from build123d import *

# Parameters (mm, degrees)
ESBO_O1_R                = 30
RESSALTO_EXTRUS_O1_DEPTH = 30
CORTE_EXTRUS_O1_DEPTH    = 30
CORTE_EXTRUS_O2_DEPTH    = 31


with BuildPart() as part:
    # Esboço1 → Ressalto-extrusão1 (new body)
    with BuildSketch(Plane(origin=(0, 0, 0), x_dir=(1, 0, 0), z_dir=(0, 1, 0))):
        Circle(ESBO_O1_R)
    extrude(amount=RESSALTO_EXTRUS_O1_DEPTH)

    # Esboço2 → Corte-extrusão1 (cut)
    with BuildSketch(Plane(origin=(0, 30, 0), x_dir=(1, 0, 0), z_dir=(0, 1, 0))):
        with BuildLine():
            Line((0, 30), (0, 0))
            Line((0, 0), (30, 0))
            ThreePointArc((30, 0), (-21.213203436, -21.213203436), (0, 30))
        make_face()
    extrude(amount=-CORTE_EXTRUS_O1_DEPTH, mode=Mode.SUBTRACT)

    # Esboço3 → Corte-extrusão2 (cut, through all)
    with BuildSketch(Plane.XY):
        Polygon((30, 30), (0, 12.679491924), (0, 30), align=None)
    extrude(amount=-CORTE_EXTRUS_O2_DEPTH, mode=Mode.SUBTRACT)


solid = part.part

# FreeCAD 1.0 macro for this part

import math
import FreeCAD as App
import Part
import Sketcher
Q = App.Units.Quantity


def add_polygon(sketch, points):
    """Adds a closed chain of lines whose ends are joined by coincident constraints."""
    first, n = sketch.GeometryCount, len(points)
    for a, b in zip(points, points[1:] + points[:1]):
        sketch.addGeometry(Part.LineSegment(App.Vector(*a, 0), App.Vector(*b, 0)), False)
    for i in range(n):
        sketch.addConstraint(Sketcher.Constraint("Coincident", first + i, 2, first + (i + 1) % n, 1))

doc = App.newDocument("Part")
body = doc.addObject("PartDesign::Body", "Body")

# Sketch on XZ plane
sketch1 = body.newObject("Sketcher::SketchObject", "Sketch")
sketch1.AttachmentSupport = (doc.getObject("XZ_Plane"), [""])
sketch1.MapMode = "FlatFace"
sketch1.addGeometry(Part.Circle(App.Vector(0, 0, 0), App.Vector(0, 0, 1), 30), False)
sketch1.addConstraint(Sketcher.Constraint("Coincident", 0, 3, -1, 1))
sketch1.addConstraint(Sketcher.Constraint("Diameter", 0, 60.0))
pad1 = body.newObject("PartDesign::Pad", "Pad")
pad1.Profile = sketch1
pad1.Length = 30
pad1.Reversed = True

# Sketch on XZ plane
sketch2 = body.newObject("Sketcher::SketchObject", "Sketch001")
sketch2.AttachmentSupport = (doc.getObject("XZ_Plane"), [""])
sketch2.MapMode = "FlatFace"
sketch2.AttachmentOffset = App.Placement(App.Vector(0, 0, -30), App.Rotation())
sketch2.addGeometry(Part.LineSegment(App.Vector(0, 0, 0), App.Vector(0, -30, 0)), False)
sketch2.addGeometry(Part.ArcOfCircle(Part.Circle(App.Vector(0, 0, 0), App.Vector(0, 0, 1), 30), math.radians(0), math.radians(270)), False)
sketch2.addGeometry(Part.LineSegment(App.Vector(30, 0, 0), App.Vector(0, 0, 0)), False)
sketch2.addConstraint(Sketcher.Constraint("Coincident", 0, 2, 1, 2))
sketch2.addConstraint(Sketcher.Constraint("Coincident", 1, 1, 2, 1))
sketch2.addConstraint(Sketcher.Constraint("Coincident", 2, 2, 0, 1))
sketch2.addConstraint(Sketcher.Constraint("Vertical", 0))
sketch2.addConstraint(Sketcher.Constraint("Horizontal", 2))
sketch2.addConstraint(Sketcher.Constraint("Coincident", 1, 3, -1, 1))
sketch2.addConstraint(Sketcher.Constraint("Coincident", 2, 2, -1, 1))
sketch2.addConstraint(Sketcher.Constraint("Radius", 1, 30.0))
pocket1 = body.newObject("PartDesign::Pocket", "Pocket")
pocket1.Profile = sketch2
pocket1.Length = 30
pocket1.Reversed = True

# Sketch on XY plane
sketch3 = body.newObject("Sketcher::SketchObject", "Sketch002")
sketch3.AttachmentSupport = (doc.getObject("XY_Plane"), [""])
sketch3.MapMode = "FlatFace"
add_polygon(sketch3, [(0, 13), (30, 30), (0, 30)])  # lines 0-2
sketch3.addConstraint(Sketcher.Constraint("Horizontal", 1))
sketch3.addConstraint(Sketcher.Constraint("Vertical", 2))
sketch3.addConstraint(Sketcher.Constraint("PointOnObject", 1, 2, -2))
sketch3.addConstraint(Sketcher.Constraint("DistanceX", 1, 2, 1, 1, 30.0))
sketch3.addConstraint(Sketcher.Constraint("Angle", 0, Q("30 deg")))
sketch3.addConstraint(Sketcher.Constraint("DistanceY", -1, 1, 0, 2, 30.0))
pocket2 = body.newObject("PartDesign::Pocket", "Pocket001")
pocket2.Profile = sketch3
pocket2.Type = "ThroughAll"

doc.recompute()
